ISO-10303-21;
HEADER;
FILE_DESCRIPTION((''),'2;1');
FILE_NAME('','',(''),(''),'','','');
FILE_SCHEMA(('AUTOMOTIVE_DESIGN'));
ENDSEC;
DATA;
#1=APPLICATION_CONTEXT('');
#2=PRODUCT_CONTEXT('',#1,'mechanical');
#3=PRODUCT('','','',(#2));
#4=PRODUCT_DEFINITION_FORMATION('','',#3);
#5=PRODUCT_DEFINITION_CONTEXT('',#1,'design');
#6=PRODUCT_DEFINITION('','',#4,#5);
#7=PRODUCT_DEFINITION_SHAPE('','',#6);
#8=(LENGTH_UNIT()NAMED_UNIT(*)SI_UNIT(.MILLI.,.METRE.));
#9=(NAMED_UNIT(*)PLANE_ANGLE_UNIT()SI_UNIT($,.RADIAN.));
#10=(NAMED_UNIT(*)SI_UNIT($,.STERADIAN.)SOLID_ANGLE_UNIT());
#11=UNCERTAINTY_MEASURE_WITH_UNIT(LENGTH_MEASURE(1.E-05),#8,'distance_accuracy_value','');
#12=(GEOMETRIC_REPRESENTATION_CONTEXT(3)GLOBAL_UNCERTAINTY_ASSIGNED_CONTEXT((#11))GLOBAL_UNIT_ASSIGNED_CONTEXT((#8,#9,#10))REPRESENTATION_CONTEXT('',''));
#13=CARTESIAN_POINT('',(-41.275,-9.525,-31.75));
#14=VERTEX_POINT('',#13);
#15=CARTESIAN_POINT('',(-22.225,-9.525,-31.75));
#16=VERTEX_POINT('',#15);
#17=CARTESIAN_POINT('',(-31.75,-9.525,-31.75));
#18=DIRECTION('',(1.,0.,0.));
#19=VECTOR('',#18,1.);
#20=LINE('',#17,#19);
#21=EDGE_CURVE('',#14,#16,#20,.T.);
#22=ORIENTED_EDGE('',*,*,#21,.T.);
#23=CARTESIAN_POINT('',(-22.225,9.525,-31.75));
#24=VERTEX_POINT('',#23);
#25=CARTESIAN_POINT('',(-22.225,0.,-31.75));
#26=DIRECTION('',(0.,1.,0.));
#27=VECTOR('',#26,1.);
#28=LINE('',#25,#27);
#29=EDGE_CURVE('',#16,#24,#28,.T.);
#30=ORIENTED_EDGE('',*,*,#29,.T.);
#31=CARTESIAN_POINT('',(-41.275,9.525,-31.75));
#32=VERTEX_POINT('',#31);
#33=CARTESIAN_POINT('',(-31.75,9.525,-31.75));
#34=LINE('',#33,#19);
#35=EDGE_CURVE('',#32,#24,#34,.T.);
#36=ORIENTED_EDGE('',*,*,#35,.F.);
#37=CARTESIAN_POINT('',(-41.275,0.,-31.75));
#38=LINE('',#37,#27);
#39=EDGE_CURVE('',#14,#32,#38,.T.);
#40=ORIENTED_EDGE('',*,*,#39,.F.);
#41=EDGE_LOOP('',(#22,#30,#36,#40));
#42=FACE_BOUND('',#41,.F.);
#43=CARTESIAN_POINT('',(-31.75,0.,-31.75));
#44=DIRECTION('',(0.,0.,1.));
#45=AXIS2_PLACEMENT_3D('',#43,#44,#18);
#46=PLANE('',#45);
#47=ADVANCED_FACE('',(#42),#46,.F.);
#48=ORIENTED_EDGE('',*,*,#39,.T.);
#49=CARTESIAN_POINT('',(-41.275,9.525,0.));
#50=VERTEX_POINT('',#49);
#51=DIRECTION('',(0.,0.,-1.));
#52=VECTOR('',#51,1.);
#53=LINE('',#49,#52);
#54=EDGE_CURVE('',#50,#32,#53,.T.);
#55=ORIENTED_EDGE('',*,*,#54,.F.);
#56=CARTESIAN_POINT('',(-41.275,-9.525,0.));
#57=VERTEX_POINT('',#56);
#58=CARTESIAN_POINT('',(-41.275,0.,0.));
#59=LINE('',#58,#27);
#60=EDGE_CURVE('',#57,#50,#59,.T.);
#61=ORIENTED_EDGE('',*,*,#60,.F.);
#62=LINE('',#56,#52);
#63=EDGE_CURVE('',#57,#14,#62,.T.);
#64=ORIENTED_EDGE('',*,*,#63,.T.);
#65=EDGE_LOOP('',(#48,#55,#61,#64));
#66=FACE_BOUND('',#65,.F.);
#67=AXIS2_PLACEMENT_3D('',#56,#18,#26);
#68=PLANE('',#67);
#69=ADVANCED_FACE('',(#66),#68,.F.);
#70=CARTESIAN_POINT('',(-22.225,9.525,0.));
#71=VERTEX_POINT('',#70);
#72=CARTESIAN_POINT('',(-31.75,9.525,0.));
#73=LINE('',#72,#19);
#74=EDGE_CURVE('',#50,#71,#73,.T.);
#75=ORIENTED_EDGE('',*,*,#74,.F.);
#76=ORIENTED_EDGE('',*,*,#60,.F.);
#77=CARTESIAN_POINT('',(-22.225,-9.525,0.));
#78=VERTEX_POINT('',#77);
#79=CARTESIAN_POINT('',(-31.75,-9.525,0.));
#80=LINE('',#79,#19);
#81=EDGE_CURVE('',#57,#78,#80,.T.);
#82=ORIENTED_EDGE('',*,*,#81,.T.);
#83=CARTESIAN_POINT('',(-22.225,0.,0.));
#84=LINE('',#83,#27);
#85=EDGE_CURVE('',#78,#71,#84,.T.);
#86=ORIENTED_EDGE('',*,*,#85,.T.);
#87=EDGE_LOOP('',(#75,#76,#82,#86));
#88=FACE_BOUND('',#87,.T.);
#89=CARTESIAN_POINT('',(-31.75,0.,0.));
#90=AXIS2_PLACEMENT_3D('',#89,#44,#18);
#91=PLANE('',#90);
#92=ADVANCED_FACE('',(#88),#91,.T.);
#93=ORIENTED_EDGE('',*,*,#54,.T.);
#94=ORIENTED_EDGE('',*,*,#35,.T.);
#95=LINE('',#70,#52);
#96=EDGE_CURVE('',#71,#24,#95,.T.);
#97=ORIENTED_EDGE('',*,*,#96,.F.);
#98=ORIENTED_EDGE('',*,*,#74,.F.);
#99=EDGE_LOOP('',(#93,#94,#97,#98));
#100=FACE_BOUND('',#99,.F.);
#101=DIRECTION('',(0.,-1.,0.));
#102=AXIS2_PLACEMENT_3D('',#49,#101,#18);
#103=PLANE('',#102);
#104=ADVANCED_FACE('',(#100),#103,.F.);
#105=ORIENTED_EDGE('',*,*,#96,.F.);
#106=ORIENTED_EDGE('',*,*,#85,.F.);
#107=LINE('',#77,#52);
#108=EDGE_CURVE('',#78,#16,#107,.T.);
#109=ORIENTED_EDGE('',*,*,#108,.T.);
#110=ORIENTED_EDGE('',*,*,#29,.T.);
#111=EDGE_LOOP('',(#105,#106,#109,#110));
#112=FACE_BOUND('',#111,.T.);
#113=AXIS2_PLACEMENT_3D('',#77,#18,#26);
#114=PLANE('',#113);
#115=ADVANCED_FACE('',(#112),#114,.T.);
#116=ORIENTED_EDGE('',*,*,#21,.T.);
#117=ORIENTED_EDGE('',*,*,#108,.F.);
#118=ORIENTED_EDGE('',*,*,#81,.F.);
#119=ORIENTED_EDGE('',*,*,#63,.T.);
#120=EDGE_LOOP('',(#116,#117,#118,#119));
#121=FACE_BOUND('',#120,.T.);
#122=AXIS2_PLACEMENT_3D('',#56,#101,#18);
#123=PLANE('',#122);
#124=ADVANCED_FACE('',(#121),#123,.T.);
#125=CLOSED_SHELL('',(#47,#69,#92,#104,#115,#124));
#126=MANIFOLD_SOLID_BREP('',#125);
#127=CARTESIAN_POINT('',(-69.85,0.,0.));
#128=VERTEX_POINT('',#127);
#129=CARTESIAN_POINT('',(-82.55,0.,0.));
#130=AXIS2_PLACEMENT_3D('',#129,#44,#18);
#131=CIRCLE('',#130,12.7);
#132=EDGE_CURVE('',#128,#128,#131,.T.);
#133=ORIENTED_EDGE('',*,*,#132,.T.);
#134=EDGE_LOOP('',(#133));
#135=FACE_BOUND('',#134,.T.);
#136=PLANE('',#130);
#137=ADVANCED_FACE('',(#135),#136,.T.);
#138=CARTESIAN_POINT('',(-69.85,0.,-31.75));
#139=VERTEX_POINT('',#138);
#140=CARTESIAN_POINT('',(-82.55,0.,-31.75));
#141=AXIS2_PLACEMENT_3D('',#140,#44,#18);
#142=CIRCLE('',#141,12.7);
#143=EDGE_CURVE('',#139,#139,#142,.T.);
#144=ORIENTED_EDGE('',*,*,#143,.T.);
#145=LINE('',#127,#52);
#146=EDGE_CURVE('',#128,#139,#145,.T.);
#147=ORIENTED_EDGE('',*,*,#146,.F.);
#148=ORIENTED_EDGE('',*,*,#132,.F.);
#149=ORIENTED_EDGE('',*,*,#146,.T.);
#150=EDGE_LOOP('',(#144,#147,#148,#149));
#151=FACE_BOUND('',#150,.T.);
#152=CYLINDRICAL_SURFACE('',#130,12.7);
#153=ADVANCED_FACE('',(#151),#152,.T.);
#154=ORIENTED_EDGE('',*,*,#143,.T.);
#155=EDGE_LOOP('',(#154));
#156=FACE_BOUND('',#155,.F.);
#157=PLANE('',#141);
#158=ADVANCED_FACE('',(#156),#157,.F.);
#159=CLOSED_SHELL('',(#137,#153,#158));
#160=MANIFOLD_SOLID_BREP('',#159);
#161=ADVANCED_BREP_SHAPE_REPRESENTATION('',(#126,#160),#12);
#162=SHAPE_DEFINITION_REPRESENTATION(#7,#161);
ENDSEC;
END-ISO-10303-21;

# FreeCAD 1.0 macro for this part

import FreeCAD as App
import Part
import Sketcher
from FreeCAD import Vector
Q = App.Units.Quantity

doc = App.newDocument("Part")
body = doc.addObject("PartDesign::Body", "Body")
body.AllowCompound = True

sketch1 = body.newObject("Sketcher::SketchObject", "Sketch")
sketch1.AttachmentSupport = (doc.getObject("XY_Plane"), [""])
sketch1.MapMode = "FlatFace"
sketch1.addGeometry([
    Part.Circle(Vector(-82.55, 0, 0), Vector(0, 0, 1), 12.7),
    Part.LineSegment(Vector(-41.275, 9.525, 0), Vector(-41.275, -9.525, 0)),
    Part.LineSegment(Vector(-41.275, -9.525, 0), Vector(-22.225, -9.525, 0)),
    Part.LineSegment(Vector(-22.225, -9.525, 0), Vector(-22.225, 9.525, 0)),
    Part.LineSegment(Vector(-22.225, 9.525, 0), Vector(-41.275, 9.525, 0)),
], False)
sketch1.addConstraint([
    Sketcher.Constraint("Coincident", 1, 2, 2, 1),
    Sketcher.Constraint("Coincident", 2, 2, 3, 1),
    Sketcher.Constraint("Coincident", 3, 2, 4, 1),
    Sketcher.Constraint("Coincident", 4, 2, 1, 1),
    Sketcher.Constraint("Vertical", 1),
    Sketcher.Constraint("Horizontal", 2),
    Sketcher.Constraint("Vertical", 3),
    Sketcher.Constraint("Horizontal", 4),
    Sketcher.Constraint("PointOnObject", 0, 3, -1),
    Sketcher.Constraint("Equal", 4, 1),
    Sketcher.Constraint("Diameter", 0, Q("1 in")),
    Sketcher.Constraint("DistanceX", 2, 1, 2, 2, Q("0.75 in")),
    Sketcher.Constraint("DistanceX", 0, 3, -1, 1, Q("3.25 in")),
    Sketcher.Constraint("DistanceX", 1, 2, -1, 1, Q("1.625 in")),
    Sketcher.Constraint("DistanceY", 1, 2, -1, 1, Q("0.375 in")),
])
pad1 = body.newObject("PartDesign::Pad", "Pad")
pad1.Profile = sketch1
pad1.Length = Q("1.25 in")
pad1.Reversed = True

doc.recompute()
